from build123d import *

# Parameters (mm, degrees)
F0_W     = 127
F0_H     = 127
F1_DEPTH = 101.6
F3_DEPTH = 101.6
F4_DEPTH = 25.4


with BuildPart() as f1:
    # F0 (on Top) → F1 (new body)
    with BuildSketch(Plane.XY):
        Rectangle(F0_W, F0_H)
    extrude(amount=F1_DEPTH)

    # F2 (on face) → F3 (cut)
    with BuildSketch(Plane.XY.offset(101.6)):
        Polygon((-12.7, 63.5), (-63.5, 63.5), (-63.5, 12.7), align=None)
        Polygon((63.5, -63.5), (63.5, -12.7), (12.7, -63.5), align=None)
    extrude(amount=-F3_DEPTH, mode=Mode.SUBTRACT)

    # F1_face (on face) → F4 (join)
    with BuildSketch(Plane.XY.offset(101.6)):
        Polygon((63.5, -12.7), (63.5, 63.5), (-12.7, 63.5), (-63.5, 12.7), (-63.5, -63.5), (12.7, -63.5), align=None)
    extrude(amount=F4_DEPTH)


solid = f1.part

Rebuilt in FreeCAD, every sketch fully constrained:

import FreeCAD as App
import Part
import Sketcher

V = App.Vector
Q = App.Units.Quantity

doc = App.newDocument("Part")
body = doc.addObject("PartDesign::Body", "Body")

sketch1 = body.newObject("Sketcher::SketchObject", "Sketch")
sketch1.AttachmentSupport = (doc.getObject("XY_Plane"), [""])
sketch1.MapMode = "FlatFace"
sketch1.addGeometry([
    Part.LineSegment(V(-63.5, 63.5, 0), V(-63.5, -63.5, 0)),
    Part.LineSegment(V(-63.5, -63.5, 0), V(63.5, -63.5, 0)),
    Part.LineSegment(V(63.5, -63.5, 0), V(63.5, 63.5, 0)),
    Part.LineSegment(V(63.5, 63.5, 0), V(-63.5, 63.5, 0)),
], False)
sketch1.addConstraint([
    Sketcher.Constraint("Coincident", 0, 2, 1, 1),
    Sketcher.Constraint("Coincident", 1, 2, 2, 1),
    Sketcher.Constraint("Coincident", 2, 2, 3, 1),
    Sketcher.Constraint("Coincident", 3, 2, 0, 1),
    Sketcher.Constraint("Vertical", 0),
    Sketcher.Constraint("Horizontal", 1),
    Sketcher.Constraint("Vertical", 2),
    Sketcher.Constraint("Horizontal", 3),
    Sketcher.Constraint("Symmetric", 0, 2, 2, 2, -1, 1),
    Sketcher.Constraint("Equal", 3, 0),
    Sketcher.Constraint("DistanceX", 1, 1, 1, 2, Q("5 in")),
])
pad1 = body.newObject("PartDesign::Pad", "Pad")
pad1.Profile = sketch1
pad1.Length = Q("4 in")

sketch2 = body.newObject("Sketcher::SketchObject", "Sketch001")
sketch2.AttachmentSupport = (doc.getObject("XY_Plane"), [""])
sketch2.MapMode = "FlatFace"
sketch2.AttachmentOffset = App.Placement(V(0, 0, 4 * 25.4), App.Rotation())
sketch2.addGeometry([
    Part.LineSegment(V(-12.7, 63.5, 0), V(-63.5, 63.5, 0)),
    Part.LineSegment(V(-63.5, 63.5, 0), V(-63.5, 12.7, 0)),
    Part.LineSegment(V(-63.5, 12.7, 0), V(-12.7, 63.5, 0)),
    Part.LineSegment(V(63.5, -63.5, 0), V(63.5, -12.7, 0)),
    Part.LineSegment(V(63.5, -12.7, 0), V(12.7, -63.5, 0)),
    Part.LineSegment(V(12.7, -63.5, 0), V(63.5, -63.5, 0)),
], False)
sketch2.addConstraint([
    Sketcher.Constraint("Coincident", 0, 2, 1, 1),
    Sketcher.Constraint("Coincident", 1, 2, 2, 1),
    Sketcher.Constraint("Coincident", 2, 2, 0, 1),
    Sketcher.Constraint("Coincident", 3, 2, 4, 1),
    Sketcher.Constraint("Coincident", 4, 2, 5, 1),
    Sketcher.Constraint("Coincident", 5, 2, 3, 1),
    Sketcher.Constraint("Horizontal", 0),
    Sketcher.Constraint("Vertical", 1),
    Sketcher.Constraint("Vertical", 3),
    Sketcher.Constraint("Horizontal", 5),
    Sketcher.Constraint("Symmetric", 1, 2, 3, 2, -1, 1),
    Sketcher.Constraint("Symmetric", 2, 2, 4, 2, -1, 1),
    Sketcher.Constraint("Equal", 5, 1),
    Sketcher.Constraint("DistanceX", 0, 2, 0, 1, Q("2 in")),
    Sketcher.Constraint("DistanceX", 2, 2, 3, 2, Q("3 in")),
    Sketcher.Constraint("DistanceY", 3, 2, 2, 2, Q("3 in")),
])
pocket1 = body.newObject("PartDesign::Pocket", "Pocket")
pocket1.Profile = sketch2
pocket1.Length = Q("4 in")

sketch3 = body.newObject("Sketcher::SketchObject", "Sketch002")
sketch3.AttachmentSupport = (doc.getObject("XY_Plane"), [""])
sketch3.MapMode = "FlatFace"
sketch3.AttachmentOffset = App.Placement(V(0, 0, 4 * 25.4), App.Rotation())
sketch3.addGeometry([
    Part.LineSegment(V(63.5, -12.7, 0), V(63.5, 63.5, 0)),
    Part.LineSegment(V(63.5, 63.5, 0), V(-12.7, 63.5, 0)),
    Part.LineSegment(V(-12.7, 63.5, 0), V(-63.5, 12.7, 0)),
    Part.LineSegment(V(-63.5, 12.7, 0), V(-63.5, -63.5, 0)),
    Part.LineSegment(V(-63.5, -63.5, 0), V(12.7, -63.5, 0)),
    Part.LineSegment(V(12.7, -63.5, 0), V(63.5, -12.7, 0)),
], False)
sketch3.addConstraint([
    Sketcher.Constraint("Coincident", 0, 2, 1, 1),
    Sketcher.Constraint("Coincident", 1, 2, 2, 1),
    Sketcher.Constraint("Coincident", 2, 2, 3, 1),
    Sketcher.Constraint("Coincident", 3, 2, 4, 1),
    Sketcher.Constraint("Coincident", 4, 2, 5, 1),
    Sketcher.Constraint("Coincident", 5, 2, 0, 1),
    Sketcher.Constraint("Vertical", 0),
    Sketcher.Constraint("Horizontal", 1),
    Sketcher.Constraint("Vertical", 3),
    Sketcher.Constraint("Horizontal", 4),
    Sketcher.Constraint("Symmetric", 0, 2, 3, 2, -1, 1),
    Sketcher.Constraint("Parallel", 2, 5),
    Sketcher.Constraint("Equal", 1, 4),
    Sketcher.Constraint("Equal", 4, 0),
    Sketcher.Constraint("DistanceX", 1, 2, 1, 1, Q("3 in")),
    Sketcher.Constraint("Angle", 2, Q("-135 deg")),
    Sketcher.Constraint("DistanceX", 2, 2, 1, 2, Q("2 in")),
])
pad2 = body.newObject("PartDesign::Pad", "Pad001")
pad2.Profile = sketch3
pad2.Length = Q("1 in")

doc.recompute()
